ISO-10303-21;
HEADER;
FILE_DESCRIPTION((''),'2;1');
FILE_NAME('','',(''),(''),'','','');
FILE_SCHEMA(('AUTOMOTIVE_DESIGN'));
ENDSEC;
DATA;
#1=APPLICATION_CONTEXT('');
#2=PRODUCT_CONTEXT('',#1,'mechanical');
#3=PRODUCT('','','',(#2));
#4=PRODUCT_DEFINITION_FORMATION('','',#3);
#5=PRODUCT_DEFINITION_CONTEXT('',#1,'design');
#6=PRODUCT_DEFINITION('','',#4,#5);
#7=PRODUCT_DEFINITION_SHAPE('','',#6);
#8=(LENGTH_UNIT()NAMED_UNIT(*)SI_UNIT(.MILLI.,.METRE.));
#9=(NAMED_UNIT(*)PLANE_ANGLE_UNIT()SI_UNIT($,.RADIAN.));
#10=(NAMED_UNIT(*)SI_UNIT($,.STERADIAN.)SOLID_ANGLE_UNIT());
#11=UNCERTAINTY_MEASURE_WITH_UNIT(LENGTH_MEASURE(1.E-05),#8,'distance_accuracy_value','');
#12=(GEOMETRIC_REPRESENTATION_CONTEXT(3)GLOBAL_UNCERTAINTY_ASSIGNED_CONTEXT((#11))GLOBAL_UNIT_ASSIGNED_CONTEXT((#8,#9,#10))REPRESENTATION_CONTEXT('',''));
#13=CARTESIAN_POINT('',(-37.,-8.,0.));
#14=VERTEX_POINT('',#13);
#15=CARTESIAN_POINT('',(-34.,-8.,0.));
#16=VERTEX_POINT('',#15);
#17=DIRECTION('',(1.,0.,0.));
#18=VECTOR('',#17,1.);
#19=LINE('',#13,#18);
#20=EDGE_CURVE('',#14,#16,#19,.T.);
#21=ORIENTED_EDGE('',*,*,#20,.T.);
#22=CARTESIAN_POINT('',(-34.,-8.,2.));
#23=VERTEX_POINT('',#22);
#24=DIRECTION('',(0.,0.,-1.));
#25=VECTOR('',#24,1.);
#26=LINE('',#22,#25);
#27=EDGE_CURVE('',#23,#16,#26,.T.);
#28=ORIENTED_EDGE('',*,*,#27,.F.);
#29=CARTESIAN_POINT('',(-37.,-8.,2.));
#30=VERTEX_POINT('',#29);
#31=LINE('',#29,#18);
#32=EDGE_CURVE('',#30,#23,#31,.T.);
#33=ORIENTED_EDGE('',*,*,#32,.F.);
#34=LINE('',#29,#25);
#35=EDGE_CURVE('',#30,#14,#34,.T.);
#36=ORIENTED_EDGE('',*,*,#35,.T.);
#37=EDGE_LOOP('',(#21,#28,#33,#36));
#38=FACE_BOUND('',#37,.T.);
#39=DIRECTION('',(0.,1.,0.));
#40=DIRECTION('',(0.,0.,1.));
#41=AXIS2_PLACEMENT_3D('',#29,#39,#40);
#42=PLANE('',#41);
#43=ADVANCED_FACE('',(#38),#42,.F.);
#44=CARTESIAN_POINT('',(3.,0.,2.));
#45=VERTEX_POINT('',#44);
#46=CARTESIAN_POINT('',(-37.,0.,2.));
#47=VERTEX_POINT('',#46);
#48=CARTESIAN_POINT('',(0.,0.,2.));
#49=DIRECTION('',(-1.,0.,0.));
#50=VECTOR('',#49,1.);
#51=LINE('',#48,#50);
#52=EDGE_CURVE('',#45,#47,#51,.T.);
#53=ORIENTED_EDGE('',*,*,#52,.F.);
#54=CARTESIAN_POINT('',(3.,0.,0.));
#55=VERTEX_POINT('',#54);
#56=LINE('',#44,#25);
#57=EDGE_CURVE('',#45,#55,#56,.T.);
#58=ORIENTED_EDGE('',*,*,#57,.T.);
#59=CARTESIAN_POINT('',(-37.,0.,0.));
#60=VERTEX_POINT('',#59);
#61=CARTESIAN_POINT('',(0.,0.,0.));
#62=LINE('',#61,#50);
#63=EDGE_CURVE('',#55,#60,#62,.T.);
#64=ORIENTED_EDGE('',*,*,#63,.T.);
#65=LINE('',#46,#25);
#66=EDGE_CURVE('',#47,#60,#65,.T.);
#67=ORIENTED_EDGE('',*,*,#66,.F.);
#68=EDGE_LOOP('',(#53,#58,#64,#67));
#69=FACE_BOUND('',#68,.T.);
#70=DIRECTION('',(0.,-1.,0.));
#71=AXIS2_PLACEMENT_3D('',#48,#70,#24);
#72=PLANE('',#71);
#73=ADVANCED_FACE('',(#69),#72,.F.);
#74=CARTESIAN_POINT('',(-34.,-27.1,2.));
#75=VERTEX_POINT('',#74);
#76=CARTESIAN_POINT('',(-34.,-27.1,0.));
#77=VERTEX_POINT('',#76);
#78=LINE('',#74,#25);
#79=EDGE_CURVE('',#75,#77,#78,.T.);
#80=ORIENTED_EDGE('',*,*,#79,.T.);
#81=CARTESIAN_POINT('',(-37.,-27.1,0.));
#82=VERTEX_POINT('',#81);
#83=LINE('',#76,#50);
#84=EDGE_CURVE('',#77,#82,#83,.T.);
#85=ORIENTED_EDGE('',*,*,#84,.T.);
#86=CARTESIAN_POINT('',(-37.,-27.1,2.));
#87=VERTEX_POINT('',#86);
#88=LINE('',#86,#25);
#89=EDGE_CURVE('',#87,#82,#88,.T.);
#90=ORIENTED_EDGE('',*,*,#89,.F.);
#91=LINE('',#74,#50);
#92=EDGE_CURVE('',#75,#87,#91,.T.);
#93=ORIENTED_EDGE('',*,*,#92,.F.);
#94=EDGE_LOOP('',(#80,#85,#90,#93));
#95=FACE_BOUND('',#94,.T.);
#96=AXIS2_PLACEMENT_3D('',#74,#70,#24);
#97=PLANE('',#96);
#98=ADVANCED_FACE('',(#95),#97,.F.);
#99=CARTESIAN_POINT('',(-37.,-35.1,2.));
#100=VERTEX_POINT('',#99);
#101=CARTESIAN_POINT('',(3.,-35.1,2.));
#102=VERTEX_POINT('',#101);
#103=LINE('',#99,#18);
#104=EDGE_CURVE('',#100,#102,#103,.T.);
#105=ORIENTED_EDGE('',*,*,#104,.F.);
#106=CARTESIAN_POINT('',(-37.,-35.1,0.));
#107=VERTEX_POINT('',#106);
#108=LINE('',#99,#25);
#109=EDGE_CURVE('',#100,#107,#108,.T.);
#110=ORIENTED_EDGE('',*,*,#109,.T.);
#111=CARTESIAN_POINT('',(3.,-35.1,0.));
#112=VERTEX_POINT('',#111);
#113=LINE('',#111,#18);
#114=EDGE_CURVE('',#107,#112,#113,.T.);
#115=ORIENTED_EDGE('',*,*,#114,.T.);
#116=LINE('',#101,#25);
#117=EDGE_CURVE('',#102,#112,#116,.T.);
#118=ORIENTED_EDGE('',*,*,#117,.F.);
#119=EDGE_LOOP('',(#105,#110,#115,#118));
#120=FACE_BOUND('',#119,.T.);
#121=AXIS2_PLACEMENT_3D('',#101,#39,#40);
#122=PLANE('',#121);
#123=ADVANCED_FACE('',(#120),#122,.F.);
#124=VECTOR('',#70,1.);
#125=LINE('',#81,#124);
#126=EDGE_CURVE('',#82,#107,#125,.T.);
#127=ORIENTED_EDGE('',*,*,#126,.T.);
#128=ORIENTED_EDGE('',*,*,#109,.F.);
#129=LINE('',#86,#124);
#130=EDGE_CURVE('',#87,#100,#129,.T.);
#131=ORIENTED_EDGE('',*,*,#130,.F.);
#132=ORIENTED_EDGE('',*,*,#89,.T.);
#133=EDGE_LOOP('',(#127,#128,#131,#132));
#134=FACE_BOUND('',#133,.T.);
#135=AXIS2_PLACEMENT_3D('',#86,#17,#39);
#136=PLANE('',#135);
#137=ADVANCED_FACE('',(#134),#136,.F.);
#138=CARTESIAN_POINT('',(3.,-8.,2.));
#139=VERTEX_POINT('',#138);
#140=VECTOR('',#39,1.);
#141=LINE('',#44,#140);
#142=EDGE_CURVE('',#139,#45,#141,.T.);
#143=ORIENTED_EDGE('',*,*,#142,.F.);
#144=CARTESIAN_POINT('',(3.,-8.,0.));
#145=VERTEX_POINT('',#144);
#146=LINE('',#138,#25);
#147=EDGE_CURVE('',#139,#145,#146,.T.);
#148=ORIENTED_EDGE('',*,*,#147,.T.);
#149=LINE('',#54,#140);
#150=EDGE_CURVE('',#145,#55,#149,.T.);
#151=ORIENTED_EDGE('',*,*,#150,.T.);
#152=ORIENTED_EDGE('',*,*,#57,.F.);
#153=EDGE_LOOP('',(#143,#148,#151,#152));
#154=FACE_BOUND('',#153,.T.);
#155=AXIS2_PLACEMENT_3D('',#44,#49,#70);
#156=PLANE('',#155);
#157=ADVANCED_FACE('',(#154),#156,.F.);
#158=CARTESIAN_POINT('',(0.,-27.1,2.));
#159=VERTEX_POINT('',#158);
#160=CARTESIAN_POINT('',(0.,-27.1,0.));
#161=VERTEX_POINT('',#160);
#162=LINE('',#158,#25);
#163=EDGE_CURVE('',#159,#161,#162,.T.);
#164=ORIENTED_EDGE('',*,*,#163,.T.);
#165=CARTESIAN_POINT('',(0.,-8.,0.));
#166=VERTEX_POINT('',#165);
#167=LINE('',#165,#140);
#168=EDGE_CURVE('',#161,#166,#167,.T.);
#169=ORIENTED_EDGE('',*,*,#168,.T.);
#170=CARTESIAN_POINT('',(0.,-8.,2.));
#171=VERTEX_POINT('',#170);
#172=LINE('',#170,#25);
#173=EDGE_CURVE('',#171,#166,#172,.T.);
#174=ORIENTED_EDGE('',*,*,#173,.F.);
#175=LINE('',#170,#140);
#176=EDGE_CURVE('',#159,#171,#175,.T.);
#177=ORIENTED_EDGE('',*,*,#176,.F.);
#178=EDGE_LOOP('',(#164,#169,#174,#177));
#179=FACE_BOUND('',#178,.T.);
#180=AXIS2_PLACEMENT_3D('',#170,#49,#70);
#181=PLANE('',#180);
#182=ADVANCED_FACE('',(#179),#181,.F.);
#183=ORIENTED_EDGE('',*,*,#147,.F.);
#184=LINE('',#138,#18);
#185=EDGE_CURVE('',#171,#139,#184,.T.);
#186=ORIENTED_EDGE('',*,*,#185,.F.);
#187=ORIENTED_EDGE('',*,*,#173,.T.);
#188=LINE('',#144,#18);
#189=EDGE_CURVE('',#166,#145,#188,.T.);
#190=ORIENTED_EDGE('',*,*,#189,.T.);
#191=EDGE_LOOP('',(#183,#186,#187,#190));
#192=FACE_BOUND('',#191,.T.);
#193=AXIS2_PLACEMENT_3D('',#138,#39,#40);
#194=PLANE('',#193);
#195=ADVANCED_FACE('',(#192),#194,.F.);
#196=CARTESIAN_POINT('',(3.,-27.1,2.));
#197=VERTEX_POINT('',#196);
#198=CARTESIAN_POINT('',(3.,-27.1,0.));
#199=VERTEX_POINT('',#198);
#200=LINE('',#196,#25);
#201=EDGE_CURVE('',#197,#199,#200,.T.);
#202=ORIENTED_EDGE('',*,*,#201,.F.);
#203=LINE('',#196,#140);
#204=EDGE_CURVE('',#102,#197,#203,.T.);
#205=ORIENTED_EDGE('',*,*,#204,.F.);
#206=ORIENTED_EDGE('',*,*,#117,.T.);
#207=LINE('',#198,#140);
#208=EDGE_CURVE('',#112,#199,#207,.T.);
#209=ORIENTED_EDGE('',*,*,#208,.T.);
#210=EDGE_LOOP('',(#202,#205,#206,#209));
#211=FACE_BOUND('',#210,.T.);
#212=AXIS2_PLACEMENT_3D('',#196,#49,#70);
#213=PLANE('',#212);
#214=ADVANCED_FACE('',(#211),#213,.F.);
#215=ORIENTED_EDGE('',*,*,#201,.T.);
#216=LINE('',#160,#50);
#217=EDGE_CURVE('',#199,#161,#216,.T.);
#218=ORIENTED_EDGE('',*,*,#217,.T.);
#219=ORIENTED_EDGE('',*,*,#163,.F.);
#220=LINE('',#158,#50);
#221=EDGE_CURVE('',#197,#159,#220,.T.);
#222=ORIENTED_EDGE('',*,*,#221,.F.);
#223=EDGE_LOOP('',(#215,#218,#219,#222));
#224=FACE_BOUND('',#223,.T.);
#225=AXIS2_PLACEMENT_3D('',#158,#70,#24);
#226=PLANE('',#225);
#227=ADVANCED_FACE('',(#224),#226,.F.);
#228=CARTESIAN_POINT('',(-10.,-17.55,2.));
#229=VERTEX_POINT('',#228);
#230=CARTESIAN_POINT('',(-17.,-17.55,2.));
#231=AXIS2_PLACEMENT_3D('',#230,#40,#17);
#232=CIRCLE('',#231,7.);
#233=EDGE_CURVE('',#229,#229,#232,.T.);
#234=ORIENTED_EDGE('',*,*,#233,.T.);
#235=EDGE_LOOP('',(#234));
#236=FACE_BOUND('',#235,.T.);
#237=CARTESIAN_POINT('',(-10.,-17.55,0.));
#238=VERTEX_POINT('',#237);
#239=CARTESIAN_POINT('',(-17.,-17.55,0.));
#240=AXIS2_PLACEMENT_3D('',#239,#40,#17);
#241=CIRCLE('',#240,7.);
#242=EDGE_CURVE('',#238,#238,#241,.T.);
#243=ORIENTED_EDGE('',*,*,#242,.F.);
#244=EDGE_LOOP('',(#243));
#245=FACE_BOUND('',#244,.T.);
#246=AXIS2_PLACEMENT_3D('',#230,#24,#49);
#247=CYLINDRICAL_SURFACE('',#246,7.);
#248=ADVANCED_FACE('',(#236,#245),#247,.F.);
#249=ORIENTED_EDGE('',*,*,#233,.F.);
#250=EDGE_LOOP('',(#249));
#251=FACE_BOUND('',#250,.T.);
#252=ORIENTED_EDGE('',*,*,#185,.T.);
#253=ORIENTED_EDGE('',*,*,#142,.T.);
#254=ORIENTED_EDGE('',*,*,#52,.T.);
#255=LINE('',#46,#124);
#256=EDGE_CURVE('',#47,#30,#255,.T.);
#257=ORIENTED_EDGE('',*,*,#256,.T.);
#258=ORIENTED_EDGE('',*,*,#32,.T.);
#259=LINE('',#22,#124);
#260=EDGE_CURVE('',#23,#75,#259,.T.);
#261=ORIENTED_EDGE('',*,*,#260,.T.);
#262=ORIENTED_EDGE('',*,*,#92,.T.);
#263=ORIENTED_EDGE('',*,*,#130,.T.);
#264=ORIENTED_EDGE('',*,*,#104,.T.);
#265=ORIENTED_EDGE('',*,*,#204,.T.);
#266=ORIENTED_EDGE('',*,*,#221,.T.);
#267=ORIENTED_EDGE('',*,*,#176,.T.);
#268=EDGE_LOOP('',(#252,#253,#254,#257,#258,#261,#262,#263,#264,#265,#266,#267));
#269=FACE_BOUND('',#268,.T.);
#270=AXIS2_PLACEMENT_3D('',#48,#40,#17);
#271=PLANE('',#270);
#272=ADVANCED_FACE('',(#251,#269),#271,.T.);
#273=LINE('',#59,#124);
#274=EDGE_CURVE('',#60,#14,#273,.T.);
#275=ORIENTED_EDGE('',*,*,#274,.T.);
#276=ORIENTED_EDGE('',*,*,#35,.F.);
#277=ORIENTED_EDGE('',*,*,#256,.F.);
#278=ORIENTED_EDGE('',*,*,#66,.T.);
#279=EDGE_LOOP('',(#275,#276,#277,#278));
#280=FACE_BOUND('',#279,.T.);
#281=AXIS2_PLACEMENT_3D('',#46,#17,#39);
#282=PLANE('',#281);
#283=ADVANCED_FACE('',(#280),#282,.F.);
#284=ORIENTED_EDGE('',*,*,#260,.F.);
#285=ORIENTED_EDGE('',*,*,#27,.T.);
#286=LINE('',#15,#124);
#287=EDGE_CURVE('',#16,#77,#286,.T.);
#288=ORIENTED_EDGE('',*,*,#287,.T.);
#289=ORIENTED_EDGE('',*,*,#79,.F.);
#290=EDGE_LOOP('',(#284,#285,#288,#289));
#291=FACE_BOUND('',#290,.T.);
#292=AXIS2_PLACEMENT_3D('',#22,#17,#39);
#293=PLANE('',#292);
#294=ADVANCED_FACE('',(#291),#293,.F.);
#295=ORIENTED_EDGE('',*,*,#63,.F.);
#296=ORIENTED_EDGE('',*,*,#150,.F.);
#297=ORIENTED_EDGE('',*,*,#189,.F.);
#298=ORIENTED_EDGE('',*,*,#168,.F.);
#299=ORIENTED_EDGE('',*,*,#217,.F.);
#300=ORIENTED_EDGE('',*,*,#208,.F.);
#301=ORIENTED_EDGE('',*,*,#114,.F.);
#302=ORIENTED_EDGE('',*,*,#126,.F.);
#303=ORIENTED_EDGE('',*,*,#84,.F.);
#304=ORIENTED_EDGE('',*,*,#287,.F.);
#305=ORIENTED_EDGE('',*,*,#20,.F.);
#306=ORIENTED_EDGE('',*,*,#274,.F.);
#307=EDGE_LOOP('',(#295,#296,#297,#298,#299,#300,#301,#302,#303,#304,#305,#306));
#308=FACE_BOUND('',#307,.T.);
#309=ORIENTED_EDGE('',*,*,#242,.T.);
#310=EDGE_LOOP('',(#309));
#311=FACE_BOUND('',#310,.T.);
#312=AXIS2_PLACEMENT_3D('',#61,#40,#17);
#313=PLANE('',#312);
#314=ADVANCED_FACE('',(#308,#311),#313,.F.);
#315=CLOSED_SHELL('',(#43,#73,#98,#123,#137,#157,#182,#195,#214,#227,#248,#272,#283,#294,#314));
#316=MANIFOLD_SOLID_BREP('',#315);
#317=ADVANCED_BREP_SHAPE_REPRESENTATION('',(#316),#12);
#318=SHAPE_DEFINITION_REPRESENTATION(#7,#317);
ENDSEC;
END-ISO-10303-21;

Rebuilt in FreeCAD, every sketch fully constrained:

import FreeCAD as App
import Part
import Sketcher

V = App.Vector

doc = App.newDocument("Part")
body = doc.addObject("PartDesign::Body", "Body")

sketch1 = doc.addObject("Sketcher::SketchObject", "Sketch")
body.addObject(sketch1)
sketch1.AttachmentSupport = (doc.XY_Plane, [""])
sketch1.MapMode = "FlatFace"
sketch1.addGeometry(Part.LineSegment(V(3, 0, 0), V(-37, 0, 0)), False)
sketch1.addGeometry(Part.LineSegment(V(-37, 0, 0), V(-37, -8, 0)), False)
sketch1.addGeometry(Part.LineSegment(V(-37, -8, 0), V(-34, -8, 0)), False)
sketch1.addGeometry(Part.LineSegment(V(-34, -8, 0), V(-34, -27.1, 0)), False)
sketch1.addGeometry(Part.LineSegment(V(-34, -27.1, 0), V(-37, -27.1, 0)), False)
sketch1.addGeometry(Part.LineSegment(V(-37, -27.1, 0), V(-37, -35.1, 0)), False)
sketch1.addGeometry(Part.LineSegment(V(-37, -35.1, 0), V(3, -35.1, 0)), False)
sketch1.addGeometry(Part.LineSegment(V(3, -35.1, 0), V(3, -27.1, 0)), False)
sketch1.addGeometry(Part.LineSegment(V(3, -27.1, 0), V(0, -27.1, 0)), False)
sketch1.addGeometry(Part.LineSegment(V(0, -27.1, 0), V(0, -8, 0)), False)
sketch1.addGeometry(Part.LineSegment(V(0, -8, 0), V(3, -8, 0)), False)
sketch1.addGeometry(Part.LineSegment(V(3, -8, 0), V(3, 0, 0)), False)
sketch1.addGeometry(Part.Circle(V(-17, -17.6, 0), V(0, 0, 1), 7), False)
sketch1.addConstraint(Sketcher.Constraint("Coincident", 0, 2, 1, 1))
sketch1.addConstraint(Sketcher.Constraint("Coincident", 1, 2, 2, 1))
sketch1.addConstraint(Sketcher.Constraint("Coincident", 2, 2, 3, 1))
sketch1.addConstraint(Sketcher.Constraint("Coincident", 3, 2, 4, 1))
sketch1.addConstraint(Sketcher.Constraint("Coincident", 4, 2, 5, 1))
sketch1.addConstraint(Sketcher.Constraint("Coincident", 5, 2, 6, 1))
sketch1.addConstraint(Sketcher.Constraint("Coincident", 6, 2, 7, 1))
sketch1.addConstraint(Sketcher.Constraint("Coincident", 7, 2, 8, 1))
sketch1.addConstraint(Sketcher.Constraint("Coincident", 8, 2, 9, 1))
sketch1.addConstraint(Sketcher.Constraint("Coincident", 9, 2, 10, 1))
sketch1.addConstraint(Sketcher.Constraint("Coincident", 10, 2, 11, 1))
sketch1.addConstraint(Sketcher.Constraint("Coincident", 11, 2, 0, 1))
sketch1.addConstraint(Sketcher.Constraint("Horizontal", 0))
sketch1.addConstraint(Sketcher.Constraint("Vertical", 1))
sketch1.addConstraint(Sketcher.Constraint("Horizontal", 2))
sketch1.addConstraint(Sketcher.Constraint("Vertical", 3))
sketch1.addConstraint(Sketcher.Constraint("Horizontal", 4))
sketch1.addConstraint(Sketcher.Constraint("Vertical", 5))
sketch1.addConstraint(Sketcher.Constraint("Horizontal", 6))
sketch1.addConstraint(Sketcher.Constraint("Vertical", 7))
sketch1.addConstraint(Sketcher.Constraint("Horizontal", 8))
sketch1.addConstraint(Sketcher.Constraint("Vertical", 9))
sketch1.addConstraint(Sketcher.Constraint("Horizontal", 10))
sketch1.addConstraint(Sketcher.Constraint("Vertical", 11))
sketch1.addConstraint(Sketcher.Constraint("PointOnObject", 0, 2, -1))
sketch1.addConstraint(Sketcher.Constraint("PointOnObject", 8, 2, -2))
sketch1.addConstraint(Sketcher.Constraint("Horizontal", 4, 2, 7, 2))
sketch1.addConstraint(Sketcher.Constraint("Horizontal", 2, 2, 9, 2))
sketch1.addConstraint(Sketcher.Constraint("Vertical", 1, 2, 4, 2))
sketch1.addConstraint(Sketcher.Constraint("Vertical", 7, 2, 10, 2))
sketch1.addConstraint(Sketcher.Constraint("Equal", 4, 8))
sketch1.addConstraint(Sketcher.Constraint("Equal", 1, 5))
sketch1.addConstraint(Sketcher.Constraint("Diameter", 12, 14.0))
sketch1.addConstraint(Sketcher.Constraint("DistanceX", 0, 2, 0, 1, 40.0))
sketch1.addConstraint(Sketcher.Constraint("DistanceX", 2, 1, 2, 2, 3.0))
sketch1.addConstraint(Sketcher.Constraint("DistanceY", 1, 2, 1, 1, 8.0))
sketch1.addConstraint(Sketcher.Constraint("DistanceY", 3, 2, 3, 1, 19.1))
sketch1.addConstraint(Sketcher.Constraint("DistanceX", 12, 3, -1, 1, 17.0))
sketch1.addConstraint(Sketcher.Constraint("DistanceY", 12, 3, -1, 1, 17.55))
pad1 = doc.addObject("PartDesign::Pad", "Pad")
body.addObject(pad1)
pad1.Profile = sketch1
pad1.Length = 2

doc.recompute()
